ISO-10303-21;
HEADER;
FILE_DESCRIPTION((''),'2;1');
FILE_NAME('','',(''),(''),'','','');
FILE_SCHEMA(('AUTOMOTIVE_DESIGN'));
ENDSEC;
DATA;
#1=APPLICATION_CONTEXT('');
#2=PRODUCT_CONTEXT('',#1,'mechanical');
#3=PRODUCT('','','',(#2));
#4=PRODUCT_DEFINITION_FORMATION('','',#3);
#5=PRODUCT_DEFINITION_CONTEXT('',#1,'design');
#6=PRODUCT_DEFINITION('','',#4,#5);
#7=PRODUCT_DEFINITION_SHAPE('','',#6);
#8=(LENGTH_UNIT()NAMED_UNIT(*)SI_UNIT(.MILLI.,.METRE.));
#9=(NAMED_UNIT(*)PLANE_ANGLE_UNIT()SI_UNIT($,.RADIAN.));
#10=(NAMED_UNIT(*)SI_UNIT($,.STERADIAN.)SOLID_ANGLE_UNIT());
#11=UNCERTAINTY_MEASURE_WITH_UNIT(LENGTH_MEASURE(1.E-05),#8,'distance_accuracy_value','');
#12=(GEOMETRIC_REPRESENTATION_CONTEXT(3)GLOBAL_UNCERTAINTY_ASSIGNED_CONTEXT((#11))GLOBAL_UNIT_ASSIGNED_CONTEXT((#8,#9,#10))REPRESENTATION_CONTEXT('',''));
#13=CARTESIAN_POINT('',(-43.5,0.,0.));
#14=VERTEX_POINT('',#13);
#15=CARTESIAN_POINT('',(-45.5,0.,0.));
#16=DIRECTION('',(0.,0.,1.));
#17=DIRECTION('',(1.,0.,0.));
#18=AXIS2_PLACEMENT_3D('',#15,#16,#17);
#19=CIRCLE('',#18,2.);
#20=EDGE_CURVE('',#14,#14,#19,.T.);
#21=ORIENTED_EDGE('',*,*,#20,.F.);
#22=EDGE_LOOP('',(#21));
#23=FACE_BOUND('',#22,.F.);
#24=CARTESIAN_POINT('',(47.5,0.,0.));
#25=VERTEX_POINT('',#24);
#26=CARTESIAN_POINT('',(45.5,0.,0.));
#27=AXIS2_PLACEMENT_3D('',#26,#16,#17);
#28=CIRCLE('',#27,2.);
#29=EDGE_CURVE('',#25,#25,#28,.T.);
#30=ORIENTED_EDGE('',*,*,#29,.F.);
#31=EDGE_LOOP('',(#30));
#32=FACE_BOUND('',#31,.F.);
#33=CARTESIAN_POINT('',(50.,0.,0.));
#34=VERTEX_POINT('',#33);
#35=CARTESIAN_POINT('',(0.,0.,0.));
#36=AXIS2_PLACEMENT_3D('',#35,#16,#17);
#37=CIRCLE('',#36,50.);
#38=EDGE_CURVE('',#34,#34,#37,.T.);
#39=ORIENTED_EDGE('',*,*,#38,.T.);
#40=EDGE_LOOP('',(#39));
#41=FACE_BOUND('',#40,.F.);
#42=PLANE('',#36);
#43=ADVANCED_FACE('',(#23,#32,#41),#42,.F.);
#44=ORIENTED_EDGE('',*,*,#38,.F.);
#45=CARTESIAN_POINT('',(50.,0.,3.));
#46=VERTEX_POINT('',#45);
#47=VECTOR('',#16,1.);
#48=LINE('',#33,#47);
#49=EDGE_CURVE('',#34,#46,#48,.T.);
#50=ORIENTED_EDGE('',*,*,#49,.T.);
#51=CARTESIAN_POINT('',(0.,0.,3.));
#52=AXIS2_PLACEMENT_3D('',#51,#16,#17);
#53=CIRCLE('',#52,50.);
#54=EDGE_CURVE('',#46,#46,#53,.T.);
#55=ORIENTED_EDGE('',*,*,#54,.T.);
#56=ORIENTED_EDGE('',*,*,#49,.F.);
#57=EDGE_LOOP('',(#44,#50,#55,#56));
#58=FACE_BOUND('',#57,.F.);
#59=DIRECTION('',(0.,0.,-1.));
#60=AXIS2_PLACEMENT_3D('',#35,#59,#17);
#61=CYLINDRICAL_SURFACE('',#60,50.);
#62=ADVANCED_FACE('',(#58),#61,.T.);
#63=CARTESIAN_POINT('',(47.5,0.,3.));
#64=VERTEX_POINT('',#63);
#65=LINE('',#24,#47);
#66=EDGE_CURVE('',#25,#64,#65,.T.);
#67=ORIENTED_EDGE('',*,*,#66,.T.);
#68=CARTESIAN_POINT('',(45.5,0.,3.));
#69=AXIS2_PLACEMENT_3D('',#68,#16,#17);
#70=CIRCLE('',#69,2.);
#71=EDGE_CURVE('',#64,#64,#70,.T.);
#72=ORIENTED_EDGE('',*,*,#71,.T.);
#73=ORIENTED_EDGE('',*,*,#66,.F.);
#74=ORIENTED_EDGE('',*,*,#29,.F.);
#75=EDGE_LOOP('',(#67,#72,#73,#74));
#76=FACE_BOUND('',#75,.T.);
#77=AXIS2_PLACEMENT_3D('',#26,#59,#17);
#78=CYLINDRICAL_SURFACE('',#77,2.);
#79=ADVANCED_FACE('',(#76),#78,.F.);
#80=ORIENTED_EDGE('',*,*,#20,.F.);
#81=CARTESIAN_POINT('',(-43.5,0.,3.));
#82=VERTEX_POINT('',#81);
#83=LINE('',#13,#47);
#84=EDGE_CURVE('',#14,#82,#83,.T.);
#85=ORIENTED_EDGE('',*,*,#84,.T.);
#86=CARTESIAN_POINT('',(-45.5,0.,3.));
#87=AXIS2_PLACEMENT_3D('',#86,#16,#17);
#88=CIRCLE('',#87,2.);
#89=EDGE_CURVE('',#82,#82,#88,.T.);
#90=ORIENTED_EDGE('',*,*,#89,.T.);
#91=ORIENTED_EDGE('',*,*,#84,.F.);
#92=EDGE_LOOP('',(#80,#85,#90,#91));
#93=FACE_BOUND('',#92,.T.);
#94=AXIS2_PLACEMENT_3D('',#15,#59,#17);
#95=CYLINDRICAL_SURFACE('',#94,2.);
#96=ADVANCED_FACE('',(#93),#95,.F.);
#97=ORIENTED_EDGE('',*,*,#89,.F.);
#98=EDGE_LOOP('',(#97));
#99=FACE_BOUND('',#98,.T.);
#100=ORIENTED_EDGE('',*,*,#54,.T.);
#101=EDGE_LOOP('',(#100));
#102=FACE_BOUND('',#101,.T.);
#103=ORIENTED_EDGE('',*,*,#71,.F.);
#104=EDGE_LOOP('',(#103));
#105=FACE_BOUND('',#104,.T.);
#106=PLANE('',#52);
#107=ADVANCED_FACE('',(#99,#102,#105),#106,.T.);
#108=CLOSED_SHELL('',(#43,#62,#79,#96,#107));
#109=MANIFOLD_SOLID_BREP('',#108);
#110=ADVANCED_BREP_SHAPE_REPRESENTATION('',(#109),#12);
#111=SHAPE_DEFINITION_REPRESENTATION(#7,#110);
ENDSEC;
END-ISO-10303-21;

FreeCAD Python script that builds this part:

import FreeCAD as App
import Part
import Sketcher

V = App.Vector
Q = App.Units.Quantity

doc = App.newDocument("Part")
body = doc.addObject("PartDesign::Body", "Body")

# Sketch on XY plane
sketch1 = body.newObject("Sketcher::SketchObject", "Sketch")
sketch1.AttachmentSupport = (doc.getObject("XY_Plane"), [""])
sketch1.MapMode = "FlatFace"
sketch1.addGeometry(Part.Circle(V(0, 0, 0), V(0, 0, 1), 50), False)
sketch1.addGeometry(Part.Circle(V(-45.5, 0, 0), V(0, 0, 1), 2), False)
sketch1.addGeometry(Part.Circle(V(45.5, 0, 0), V(0, 0, 1), 2), False)
sketch1.addConstraint(Sketcher.Constraint("Coincident", 0, 3, -1, 1))
sketch1.addConstraint(Sketcher.Constraint("Equal", 1, 2))
sketch1.addConstraint(Sketcher.Constraint("Symmetric", 1, 3, 2, 3, -1, 1))
sketch1.addConstraint(Sketcher.Constraint("PointOnObject", 1, 3, -1))
sketch1.addConstraint(Sketcher.Constraint("Diameter", 0, Q("100 mm")))
sketch1.addConstraint(Sketcher.Constraint("Diameter", 1, Q("4 mm")))
sketch1.addConstraint(Sketcher.Constraint("DistanceX", 1, 3, 2, 3, Q("91 mm")))
pad1 = body.newObject("PartDesign::Pad", "Pad")
pad1.Profile = sketch1
pad1.Length = 3

doc.recompute()
